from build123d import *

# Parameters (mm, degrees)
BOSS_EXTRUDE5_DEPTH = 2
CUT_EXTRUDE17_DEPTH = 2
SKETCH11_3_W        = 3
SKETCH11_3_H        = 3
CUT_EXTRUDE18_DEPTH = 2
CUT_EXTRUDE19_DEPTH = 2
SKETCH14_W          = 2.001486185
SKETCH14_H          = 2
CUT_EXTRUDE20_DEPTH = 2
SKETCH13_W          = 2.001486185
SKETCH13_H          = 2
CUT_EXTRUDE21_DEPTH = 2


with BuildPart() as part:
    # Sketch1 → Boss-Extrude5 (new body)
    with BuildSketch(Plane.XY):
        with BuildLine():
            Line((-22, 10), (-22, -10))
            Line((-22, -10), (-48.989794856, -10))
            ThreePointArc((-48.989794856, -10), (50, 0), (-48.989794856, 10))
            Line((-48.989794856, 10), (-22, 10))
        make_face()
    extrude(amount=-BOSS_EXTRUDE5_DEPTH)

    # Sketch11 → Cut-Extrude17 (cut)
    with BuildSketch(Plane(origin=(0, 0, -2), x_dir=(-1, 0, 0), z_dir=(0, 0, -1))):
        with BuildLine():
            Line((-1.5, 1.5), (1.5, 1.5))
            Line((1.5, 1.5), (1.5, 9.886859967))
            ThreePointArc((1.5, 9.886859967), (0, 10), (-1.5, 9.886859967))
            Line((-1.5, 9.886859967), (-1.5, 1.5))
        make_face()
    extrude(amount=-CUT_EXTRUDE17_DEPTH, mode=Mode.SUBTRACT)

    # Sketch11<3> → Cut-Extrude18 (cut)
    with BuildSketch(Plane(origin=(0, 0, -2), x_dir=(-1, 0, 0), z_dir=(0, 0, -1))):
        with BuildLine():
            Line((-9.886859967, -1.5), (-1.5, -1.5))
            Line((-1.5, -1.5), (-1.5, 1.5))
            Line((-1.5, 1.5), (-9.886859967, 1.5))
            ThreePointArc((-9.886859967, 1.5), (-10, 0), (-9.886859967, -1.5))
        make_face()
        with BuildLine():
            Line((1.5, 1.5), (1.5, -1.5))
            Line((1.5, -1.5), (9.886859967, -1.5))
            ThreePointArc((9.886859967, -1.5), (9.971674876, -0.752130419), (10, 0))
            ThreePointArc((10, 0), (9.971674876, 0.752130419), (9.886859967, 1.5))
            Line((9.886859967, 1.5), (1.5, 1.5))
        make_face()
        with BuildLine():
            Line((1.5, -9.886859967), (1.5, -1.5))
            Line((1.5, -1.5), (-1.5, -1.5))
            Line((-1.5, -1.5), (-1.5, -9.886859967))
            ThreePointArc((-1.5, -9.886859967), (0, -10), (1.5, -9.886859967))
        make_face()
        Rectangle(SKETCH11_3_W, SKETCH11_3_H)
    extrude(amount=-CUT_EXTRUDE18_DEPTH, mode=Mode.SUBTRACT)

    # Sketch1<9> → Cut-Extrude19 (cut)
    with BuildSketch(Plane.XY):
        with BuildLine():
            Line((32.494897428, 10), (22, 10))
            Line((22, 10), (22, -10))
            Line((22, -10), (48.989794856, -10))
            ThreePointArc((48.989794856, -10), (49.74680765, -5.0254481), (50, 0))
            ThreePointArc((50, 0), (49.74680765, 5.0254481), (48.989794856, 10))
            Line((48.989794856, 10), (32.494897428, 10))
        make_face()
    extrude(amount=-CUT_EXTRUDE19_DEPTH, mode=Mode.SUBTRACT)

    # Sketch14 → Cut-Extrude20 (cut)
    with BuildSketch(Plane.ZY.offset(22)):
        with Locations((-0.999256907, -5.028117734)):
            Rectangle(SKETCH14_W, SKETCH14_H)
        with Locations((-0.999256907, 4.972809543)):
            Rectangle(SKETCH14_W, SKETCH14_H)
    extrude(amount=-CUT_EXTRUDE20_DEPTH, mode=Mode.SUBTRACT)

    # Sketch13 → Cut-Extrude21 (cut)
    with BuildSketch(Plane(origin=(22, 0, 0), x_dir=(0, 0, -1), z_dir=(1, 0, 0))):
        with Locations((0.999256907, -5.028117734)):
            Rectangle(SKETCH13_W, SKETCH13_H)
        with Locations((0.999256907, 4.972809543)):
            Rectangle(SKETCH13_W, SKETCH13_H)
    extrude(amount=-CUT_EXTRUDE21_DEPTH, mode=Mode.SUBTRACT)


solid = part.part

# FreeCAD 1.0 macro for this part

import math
import FreeCAD as App
import Part
import Sketcher
from FreeCAD import Vector
Q = App.Units.Quantity

doc = App.newDocument("Part")
body = doc.addObject("PartDesign::Body", "Body")

# Sketch on XY plane
sketch1 = body.newObject("Sketcher::SketchObject", "Sketch")
sketch1.AttachmentSupport = (doc.getObject("XY_Plane"), [""])
sketch1.MapMode = "FlatFace"
sketch1.addGeometry([
    Part.LineSegment(Vector(-22, 10, 0), Vector(-22, -10, 0)),
    Part.LineSegment(Vector(-22, -10, 0), Vector(-49, -10, 0)),
    Part.ArcOfCircle(Part.Circle(Vector(0, 0, 0), Vector(0, 0, 1), 50), math.radians(-168), math.radians(168)),
    Part.LineSegment(Vector(-49, 10, 0), Vector(-22, 10, 0)),
], False)
sketch1.addConstraint([
    Sketcher.Constraint("Coincident", 0, 2, 1, 1),
    Sketcher.Constraint("Coincident", 1, 2, 2, 1),
    Sketcher.Constraint("Coincident", 2, 2, 3, 1),
    Sketcher.Constraint("Coincident", 3, 2, 0, 1),
    Sketcher.Constraint("Vertical", 0),
    Sketcher.Constraint("Horizontal", 1),
    Sketcher.Constraint("Horizontal", 3),
    Sketcher.Constraint("Coincident", 2, 3, -1, 1),
    Sketcher.Constraint("Vertical", 1, 2, 2, 2),
    Sketcher.Constraint("Radius", 2, Q("50 mm")),
    Sketcher.Constraint("DistanceY", 0, 2, 0, 1, Q("20 mm")),
    Sketcher.Constraint("DistanceX", 0, 2, -1, 1, Q("22 mm")),
])
pad1 = body.newObject("PartDesign::Pad", "Pad")
pad1.Profile = sketch1
pad1.Length = 2
pad1.Reversed = True

# Sketch on XY plane
sketch2 = body.newObject("Sketcher::SketchObject", "Sketch001")
sketch2.AttachmentSupport = (doc.getObject("XY_Plane"), [""])
sketch2.MapMode = "FlatFace"
sketch2.AttachmentOffset = App.Placement(Vector(0, 0, -2), App.Rotation())
sketch2.addGeometry([
    Part.LineSegment(Vector(1.5, 1.5, 0), Vector(-1.5, 1.5, 0)),
    Part.LineSegment(Vector(-1.5, 1.5, 0), Vector(-1.5, 9.9, 0)),
    Part.ArcOfCircle(Part.Circle(Vector(0, 0, 0), Vector(0, 0, 1), 10), math.radians(81.37), math.radians(98.63)),
    Part.LineSegment(Vector(1.5, 9.9, 0), Vector(1.5, 1.5, 0)),
], False)
sketch2.addConstraint([
    Sketcher.Constraint("Coincident", 0, 2, 1, 1),
    Sketcher.Constraint("Coincident", 1, 2, 2, 2),
    Sketcher.Constraint("Coincident", 2, 1, 3, 1),
    Sketcher.Constraint("Coincident", 3, 2, 0, 1),
    Sketcher.Constraint("Horizontal", 0),
    Sketcher.Constraint("Vertical", 1),
    Sketcher.Constraint("Vertical", 3),
    Sketcher.Constraint("Coincident", 2, 3, -1, 1),
    Sketcher.Constraint("Horizontal", 1, 2, 2, 1),
    Sketcher.Constraint("Radius", 2, Q("10 mm")),
    Sketcher.Constraint("DistanceX", 0, 2, 0, 1, Q("3 mm")),
    Sketcher.Constraint("DistanceY", -1, 1, 0, 2, Q("1.5 mm")),
])
pocket1 = body.newObject("PartDesign::Pocket", "Pocket")
pocket1.Profile = sketch2
pocket1.Length = 2
pocket1.Reversed = True

# Sketch on XY plane
sketch3 = body.newObject("Sketcher::SketchObject", "Sketch002")
sketch3.AttachmentSupport = (doc.getObject("XY_Plane"), [""])
sketch3.MapMode = "FlatFace"
sketch3.AttachmentOffset = App.Placement(Vector(0, 0, -2), App.Rotation())
sketch3.addGeometry([
    Part.LineSegment(Vector(9.9, -1.5, 0), Vector(1.5, -1.5, 0)),  # 0
    Part.LineSegment(Vector(1.5, -1.5, 0), Vector(1.5, -9.9, 0)),  # 1
    Part.ArcOfCircle(Part.Circle(Vector(0, 0, 0), Vector(0, 0, 1), 10), math.radians(-98.63), math.radians(-81.37)),  # 2
    Part.LineSegment(Vector(-1.5, -9.9, 0), Vector(-1.5, -1.5, 0)),  # 3
    Part.LineSegment(Vector(-1.5, -1.5, 0), Vector(-9.9, -1.5, 0)),  # 4
    Part.ArcOfCircle(Part.Circle(Vector(0, 0, 0), Vector(0, 0, 1), 10), math.radians(-180), math.radians(-171.37)),  # 5
    Part.ArcOfCircle(Part.Circle(Vector(0, 0, 0), Vector(0, 0, 1), 10), math.radians(171.37), math.radians(180)),  # 6
    Part.LineSegment(Vector(-9.9, 1.5, 0), Vector(9.9, 1.5, 0)),  # 7
    Part.ArcOfCircle(Part.Circle(Vector(0, 0, 0), Vector(0, 0, 1), 10), math.radians(-8.63), math.radians(8.63)),  # 8
], False)
sketch3.addConstraint([
    Sketcher.Constraint("Coincident", 0, 2, 1, 1),
    Sketcher.Constraint("Coincident", 1, 2, 2, 2),
    Sketcher.Constraint("Coincident", 2, 1, 3, 1),
    Sketcher.Constraint("Coincident", 3, 2, 4, 1),
    Sketcher.Constraint("Coincident", 4, 2, 5, 2),
    Sketcher.Constraint("Tangent", 5, 1, 6, 2),
    Sketcher.Constraint("Coincident", 6, 1, 7, 1),
    Sketcher.Constraint("Coincident", 7, 2, 8, 2),
    Sketcher.Constraint("Coincident", 8, 1, 0, 1),
    Sketcher.Constraint("Horizontal", 0),
    Sketcher.Constraint("Vertical", 1),
    Sketcher.Constraint("Vertical", 3),
    Sketcher.Constraint("Horizontal", 4),
    Sketcher.Constraint("Horizontal", 7),
    Sketcher.Constraint("Coincident", 2, 3, -1, 1),
    Sketcher.Constraint("Coincident", 5, 3, -1, 1),
    Sketcher.Constraint("Coincident", 8, 3, -1, 1),
    Sketcher.Constraint("Equal", 2, 5),
    Sketcher.Constraint("Equal", 5, 6),
    Sketcher.Constraint("Equal", 6, 8),
    Sketcher.Constraint("Symmetric", 0, 2, 3, 2, -2),
    Sketcher.Constraint("PointOnObject", 5, 1, -1),
    Sketcher.Constraint("Vertical", 4, 2, 6, 1),
    Sketcher.Constraint("Equal", 4, 1),
    Sketcher.Constraint("Radius", 2, Q("10 mm")),
    Sketcher.Constraint("DistanceX", 2, 1, 1, 2, Q("3 mm")),
])
pocket2 = body.newObject("PartDesign::Pocket", "Pocket001")
pocket2.Profile = sketch3
pocket2.Length = 2
pocket2.Reversed = True

# Sketch on XY plane
sketch4 = body.newObject("Sketcher::SketchObject", "Sketch003")
sketch4.AttachmentSupport = (doc.getObject("XY_Plane"), [""])
sketch4.MapMode = "FlatFace"
sketch4.addGeometry([
    Part.LineSegment(Vector(22, 10, 0), Vector(22, -10, 0)),  # 0
    Part.LineSegment(Vector(22, -10, 0), Vector(49, -10, 0)),  # 1
    Part.ArcOfCircle(Part.Circle(Vector(0, 0, 0), Vector(0, 0, 1), 50), math.radians(-11.54), math.radians(0)),  # 2
    Part.ArcOfCircle(Part.Circle(Vector(0, 0, 0), Vector(0, 0, 1), 50), math.radians(0), math.radians(11.54)),  # 3
    Part.LineSegment(Vector(49, 10, 0), Vector(22, 10, 0)),  # 4
], False)
sketch4.addConstraint([
    Sketcher.Constraint("Coincident", 0, 2, 1, 1),
    Sketcher.Constraint("Coincident", 1, 2, 2, 1),
    Sketcher.Constraint("Tangent", 2, 2, 3, 1),
    Sketcher.Constraint("Coincident", 3, 2, 4, 1),
    Sketcher.Constraint("Coincident", 4, 2, 0, 1),
    Sketcher.Constraint("Vertical", 0),
    Sketcher.Constraint("Horizontal", 1),
    Sketcher.Constraint("Horizontal", 4),
    Sketcher.Constraint("Coincident", 2, 3, -1, 1),
    Sketcher.Constraint("Equal", 2, 3),
    Sketcher.Constraint("PointOnObject", 2, 2, -1),
    Sketcher.Constraint("Vertical", 1, 2, 3, 2),
    Sketcher.Constraint("Radius", 2, Q("50 mm")),
    Sketcher.Constraint("DistanceY", 0, 2, 0, 1, Q("20 mm")),
    Sketcher.Constraint("DistanceX", -1, 1, 0, 2, Q("22 mm")),
])
pocket3 = body.newObject("PartDesign::Pocket", "Pocket002")
pocket3.Profile = sketch4
pocket3.Length = 2

# Sketch on YZ plane
sketch5 = body.newObject("Sketcher::SketchObject", "Sketch004")
sketch5.AttachmentSupport = (doc.getObject("YZ_Plane"), [""])
sketch5.MapMode = "FlatFace"
sketch5.AttachmentOffset = App.Placement(Vector(0, 0, -22), App.Rotation())
sketch5.addGeometry([
    Part.LineSegment(Vector(-4, -2, 0), Vector(-6, -2, 0)),  # 0
    Part.LineSegment(Vector(-6, -2, 0), Vector(-6, 0, 0)),  # 1
    Part.LineSegment(Vector(-6, 0, 0), Vector(-4, 0, 0)),  # 2
    Part.LineSegment(Vector(-4, 0, 0), Vector(-4, -2, 0)),  # 3
    Part.LineSegment(Vector(6, -2, 0), Vector(4, -2, 0)),  # 4
    Part.LineSegment(Vector(4, -2, 0), Vector(4, 0, 0)),  # 5
    Part.LineSegment(Vector(4, 0, 0), Vector(6, 0, 0)),  # 6
    Part.LineSegment(Vector(6, 0, 0), Vector(6, -2, 0)),  # 7
], False)
sketch5.addConstraint([
    Sketcher.Constraint("Coincident", 0, 2, 1, 1),
    Sketcher.Constraint("Coincident", 1, 2, 2, 1),
    Sketcher.Constraint("Coincident", 2, 2, 3, 1),
    Sketcher.Constraint("Coincident", 3, 2, 0, 1),
    Sketcher.Constraint("Coincident", 4, 2, 5, 1),
    Sketcher.Constraint("Coincident", 5, 2, 6, 1),
    Sketcher.Constraint("Coincident", 6, 2, 7, 1),
    Sketcher.Constraint("Coincident", 7, 2, 4, 1),
    Sketcher.Constraint("Horizontal", 0),
    Sketcher.Constraint("Vertical", 1),
    Sketcher.Constraint("Horizontal", 2),
    Sketcher.Constraint("Vertical", 3),
    Sketcher.Constraint("Horizontal", 4),
    Sketcher.Constraint("Vertical", 5),
    Sketcher.Constraint("Horizontal", 6),
    Sketcher.Constraint("Vertical", 7),
    Sketcher.Constraint("Horizontal", 3, 2, 4, 2),
    Sketcher.Constraint("Horizontal", 2, 2, 5, 2),
    Sketcher.Constraint("Equal", 2, 4),
    Sketcher.Constraint("DistanceX", 0, 2, 0, 1, Q("2 mm")),
    Sketcher.Constraint("DistanceY", 0, 2, -1, 1, Q("2 mm")),
    Sketcher.Constraint("DistanceY", 1, 1, 1, 2, Q("2.001486 mm")),
    Sketcher.Constraint("DistanceX", -1, 1, 4, 2, Q("3.97281 mm")),
    Sketcher.Constraint("DistanceX", 0, 2, -1, 1, Q("6.028118 mm")),
])
pocket4 = body.newObject("PartDesign::Pocket", "Pocket003")
pocket4.Profile = sketch5
pocket4.Length = 2
pocket4.Reversed = True

# Sketch on YZ plane
sketch6 = body.newObject("Sketcher::SketchObject", "Sketch005")
sketch6.AttachmentSupport = (doc.getObject("YZ_Plane"), [""])
sketch6.MapMode = "FlatFace"
sketch6.AttachmentOffset = App.Placement(Vector(0, 0, 22), App.Rotation())
sketch6.addGeometry([
    Part.LineSegment(Vector(-4, 0, 0), Vector(-6, 0, 0)),  # 0
    Part.LineSegment(Vector(-6, 0, 0), Vector(-6, -2, 0)),  # 1
    Part.LineSegment(Vector(-6, -2, 0), Vector(-4, -2, 0)),  # 2
    Part.LineSegment(Vector(-4, -2, 0), Vector(-4, 0, 0)),  # 3
    Part.LineSegment(Vector(6, 0, 0), Vector(4, 0, 0)),  # 4
    Part.LineSegment(Vector(4, 0, 0), Vector(4, -2, 0)),  # 5
    Part.LineSegment(Vector(4, -2, 0), Vector(6, -2, 0)),  # 6
    Part.LineSegment(Vector(6, -2, 0), Vector(6, 0, 0)),  # 7
], False)
sketch6.addConstraint([
    Sketcher.Constraint("Coincident", 0, 2, 1, 1),
    Sketcher.Constraint("Coincident", 1, 2, 2, 1),
    Sketcher.Constraint("Coincident", 2, 2, 3, 1),
    Sketcher.Constraint("Coincident", 3, 2, 0, 1),
    Sketcher.Constraint("Coincident", 4, 2, 5, 1),
    Sketcher.Constraint("Coincident", 5, 2, 6, 1),
    Sketcher.Constraint("Coincident", 6, 2, 7, 1),
    Sketcher.Constraint("Coincident", 7, 2, 4, 1),
    Sketcher.Constraint("Horizontal", 0),
    Sketcher.Constraint("Vertical", 1),
    Sketcher.Constraint("Horizontal", 2),
    Sketcher.Constraint("Vertical", 3),
    Sketcher.Constraint("Horizontal", 4),
    Sketcher.Constraint("Vertical", 5),
    Sketcher.Constraint("Horizontal", 6),
    Sketcher.Constraint("Vertical", 7),
    Sketcher.Constraint("Horizontal", 3, 2, 4, 2),
    Sketcher.Constraint("Horizontal", 2, 2, 5, 2),
    Sketcher.Constraint("Equal", 2, 4),
    Sketcher.Constraint("DistanceX", 0, 2, 0, 1, Q("2 mm")),
    Sketcher.Constraint("DistanceY", 1, 2, -1, 1, Q("2 mm")),
    Sketcher.Constraint("DistanceY", 1, 2, 1, 1, Q("2.001486 mm")),
    Sketcher.Constraint("DistanceX", -1, 1, 4, 2, Q("3.97281 mm")),
    Sketcher.Constraint("DistanceX", 0, 2, -1, 1, Q("6.028118 mm")),
])
pocket5 = body.newObject("PartDesign::Pocket", "Pocket004")
pocket5.Profile = sketch6
pocket5.Length = 2

doc.recompute()
